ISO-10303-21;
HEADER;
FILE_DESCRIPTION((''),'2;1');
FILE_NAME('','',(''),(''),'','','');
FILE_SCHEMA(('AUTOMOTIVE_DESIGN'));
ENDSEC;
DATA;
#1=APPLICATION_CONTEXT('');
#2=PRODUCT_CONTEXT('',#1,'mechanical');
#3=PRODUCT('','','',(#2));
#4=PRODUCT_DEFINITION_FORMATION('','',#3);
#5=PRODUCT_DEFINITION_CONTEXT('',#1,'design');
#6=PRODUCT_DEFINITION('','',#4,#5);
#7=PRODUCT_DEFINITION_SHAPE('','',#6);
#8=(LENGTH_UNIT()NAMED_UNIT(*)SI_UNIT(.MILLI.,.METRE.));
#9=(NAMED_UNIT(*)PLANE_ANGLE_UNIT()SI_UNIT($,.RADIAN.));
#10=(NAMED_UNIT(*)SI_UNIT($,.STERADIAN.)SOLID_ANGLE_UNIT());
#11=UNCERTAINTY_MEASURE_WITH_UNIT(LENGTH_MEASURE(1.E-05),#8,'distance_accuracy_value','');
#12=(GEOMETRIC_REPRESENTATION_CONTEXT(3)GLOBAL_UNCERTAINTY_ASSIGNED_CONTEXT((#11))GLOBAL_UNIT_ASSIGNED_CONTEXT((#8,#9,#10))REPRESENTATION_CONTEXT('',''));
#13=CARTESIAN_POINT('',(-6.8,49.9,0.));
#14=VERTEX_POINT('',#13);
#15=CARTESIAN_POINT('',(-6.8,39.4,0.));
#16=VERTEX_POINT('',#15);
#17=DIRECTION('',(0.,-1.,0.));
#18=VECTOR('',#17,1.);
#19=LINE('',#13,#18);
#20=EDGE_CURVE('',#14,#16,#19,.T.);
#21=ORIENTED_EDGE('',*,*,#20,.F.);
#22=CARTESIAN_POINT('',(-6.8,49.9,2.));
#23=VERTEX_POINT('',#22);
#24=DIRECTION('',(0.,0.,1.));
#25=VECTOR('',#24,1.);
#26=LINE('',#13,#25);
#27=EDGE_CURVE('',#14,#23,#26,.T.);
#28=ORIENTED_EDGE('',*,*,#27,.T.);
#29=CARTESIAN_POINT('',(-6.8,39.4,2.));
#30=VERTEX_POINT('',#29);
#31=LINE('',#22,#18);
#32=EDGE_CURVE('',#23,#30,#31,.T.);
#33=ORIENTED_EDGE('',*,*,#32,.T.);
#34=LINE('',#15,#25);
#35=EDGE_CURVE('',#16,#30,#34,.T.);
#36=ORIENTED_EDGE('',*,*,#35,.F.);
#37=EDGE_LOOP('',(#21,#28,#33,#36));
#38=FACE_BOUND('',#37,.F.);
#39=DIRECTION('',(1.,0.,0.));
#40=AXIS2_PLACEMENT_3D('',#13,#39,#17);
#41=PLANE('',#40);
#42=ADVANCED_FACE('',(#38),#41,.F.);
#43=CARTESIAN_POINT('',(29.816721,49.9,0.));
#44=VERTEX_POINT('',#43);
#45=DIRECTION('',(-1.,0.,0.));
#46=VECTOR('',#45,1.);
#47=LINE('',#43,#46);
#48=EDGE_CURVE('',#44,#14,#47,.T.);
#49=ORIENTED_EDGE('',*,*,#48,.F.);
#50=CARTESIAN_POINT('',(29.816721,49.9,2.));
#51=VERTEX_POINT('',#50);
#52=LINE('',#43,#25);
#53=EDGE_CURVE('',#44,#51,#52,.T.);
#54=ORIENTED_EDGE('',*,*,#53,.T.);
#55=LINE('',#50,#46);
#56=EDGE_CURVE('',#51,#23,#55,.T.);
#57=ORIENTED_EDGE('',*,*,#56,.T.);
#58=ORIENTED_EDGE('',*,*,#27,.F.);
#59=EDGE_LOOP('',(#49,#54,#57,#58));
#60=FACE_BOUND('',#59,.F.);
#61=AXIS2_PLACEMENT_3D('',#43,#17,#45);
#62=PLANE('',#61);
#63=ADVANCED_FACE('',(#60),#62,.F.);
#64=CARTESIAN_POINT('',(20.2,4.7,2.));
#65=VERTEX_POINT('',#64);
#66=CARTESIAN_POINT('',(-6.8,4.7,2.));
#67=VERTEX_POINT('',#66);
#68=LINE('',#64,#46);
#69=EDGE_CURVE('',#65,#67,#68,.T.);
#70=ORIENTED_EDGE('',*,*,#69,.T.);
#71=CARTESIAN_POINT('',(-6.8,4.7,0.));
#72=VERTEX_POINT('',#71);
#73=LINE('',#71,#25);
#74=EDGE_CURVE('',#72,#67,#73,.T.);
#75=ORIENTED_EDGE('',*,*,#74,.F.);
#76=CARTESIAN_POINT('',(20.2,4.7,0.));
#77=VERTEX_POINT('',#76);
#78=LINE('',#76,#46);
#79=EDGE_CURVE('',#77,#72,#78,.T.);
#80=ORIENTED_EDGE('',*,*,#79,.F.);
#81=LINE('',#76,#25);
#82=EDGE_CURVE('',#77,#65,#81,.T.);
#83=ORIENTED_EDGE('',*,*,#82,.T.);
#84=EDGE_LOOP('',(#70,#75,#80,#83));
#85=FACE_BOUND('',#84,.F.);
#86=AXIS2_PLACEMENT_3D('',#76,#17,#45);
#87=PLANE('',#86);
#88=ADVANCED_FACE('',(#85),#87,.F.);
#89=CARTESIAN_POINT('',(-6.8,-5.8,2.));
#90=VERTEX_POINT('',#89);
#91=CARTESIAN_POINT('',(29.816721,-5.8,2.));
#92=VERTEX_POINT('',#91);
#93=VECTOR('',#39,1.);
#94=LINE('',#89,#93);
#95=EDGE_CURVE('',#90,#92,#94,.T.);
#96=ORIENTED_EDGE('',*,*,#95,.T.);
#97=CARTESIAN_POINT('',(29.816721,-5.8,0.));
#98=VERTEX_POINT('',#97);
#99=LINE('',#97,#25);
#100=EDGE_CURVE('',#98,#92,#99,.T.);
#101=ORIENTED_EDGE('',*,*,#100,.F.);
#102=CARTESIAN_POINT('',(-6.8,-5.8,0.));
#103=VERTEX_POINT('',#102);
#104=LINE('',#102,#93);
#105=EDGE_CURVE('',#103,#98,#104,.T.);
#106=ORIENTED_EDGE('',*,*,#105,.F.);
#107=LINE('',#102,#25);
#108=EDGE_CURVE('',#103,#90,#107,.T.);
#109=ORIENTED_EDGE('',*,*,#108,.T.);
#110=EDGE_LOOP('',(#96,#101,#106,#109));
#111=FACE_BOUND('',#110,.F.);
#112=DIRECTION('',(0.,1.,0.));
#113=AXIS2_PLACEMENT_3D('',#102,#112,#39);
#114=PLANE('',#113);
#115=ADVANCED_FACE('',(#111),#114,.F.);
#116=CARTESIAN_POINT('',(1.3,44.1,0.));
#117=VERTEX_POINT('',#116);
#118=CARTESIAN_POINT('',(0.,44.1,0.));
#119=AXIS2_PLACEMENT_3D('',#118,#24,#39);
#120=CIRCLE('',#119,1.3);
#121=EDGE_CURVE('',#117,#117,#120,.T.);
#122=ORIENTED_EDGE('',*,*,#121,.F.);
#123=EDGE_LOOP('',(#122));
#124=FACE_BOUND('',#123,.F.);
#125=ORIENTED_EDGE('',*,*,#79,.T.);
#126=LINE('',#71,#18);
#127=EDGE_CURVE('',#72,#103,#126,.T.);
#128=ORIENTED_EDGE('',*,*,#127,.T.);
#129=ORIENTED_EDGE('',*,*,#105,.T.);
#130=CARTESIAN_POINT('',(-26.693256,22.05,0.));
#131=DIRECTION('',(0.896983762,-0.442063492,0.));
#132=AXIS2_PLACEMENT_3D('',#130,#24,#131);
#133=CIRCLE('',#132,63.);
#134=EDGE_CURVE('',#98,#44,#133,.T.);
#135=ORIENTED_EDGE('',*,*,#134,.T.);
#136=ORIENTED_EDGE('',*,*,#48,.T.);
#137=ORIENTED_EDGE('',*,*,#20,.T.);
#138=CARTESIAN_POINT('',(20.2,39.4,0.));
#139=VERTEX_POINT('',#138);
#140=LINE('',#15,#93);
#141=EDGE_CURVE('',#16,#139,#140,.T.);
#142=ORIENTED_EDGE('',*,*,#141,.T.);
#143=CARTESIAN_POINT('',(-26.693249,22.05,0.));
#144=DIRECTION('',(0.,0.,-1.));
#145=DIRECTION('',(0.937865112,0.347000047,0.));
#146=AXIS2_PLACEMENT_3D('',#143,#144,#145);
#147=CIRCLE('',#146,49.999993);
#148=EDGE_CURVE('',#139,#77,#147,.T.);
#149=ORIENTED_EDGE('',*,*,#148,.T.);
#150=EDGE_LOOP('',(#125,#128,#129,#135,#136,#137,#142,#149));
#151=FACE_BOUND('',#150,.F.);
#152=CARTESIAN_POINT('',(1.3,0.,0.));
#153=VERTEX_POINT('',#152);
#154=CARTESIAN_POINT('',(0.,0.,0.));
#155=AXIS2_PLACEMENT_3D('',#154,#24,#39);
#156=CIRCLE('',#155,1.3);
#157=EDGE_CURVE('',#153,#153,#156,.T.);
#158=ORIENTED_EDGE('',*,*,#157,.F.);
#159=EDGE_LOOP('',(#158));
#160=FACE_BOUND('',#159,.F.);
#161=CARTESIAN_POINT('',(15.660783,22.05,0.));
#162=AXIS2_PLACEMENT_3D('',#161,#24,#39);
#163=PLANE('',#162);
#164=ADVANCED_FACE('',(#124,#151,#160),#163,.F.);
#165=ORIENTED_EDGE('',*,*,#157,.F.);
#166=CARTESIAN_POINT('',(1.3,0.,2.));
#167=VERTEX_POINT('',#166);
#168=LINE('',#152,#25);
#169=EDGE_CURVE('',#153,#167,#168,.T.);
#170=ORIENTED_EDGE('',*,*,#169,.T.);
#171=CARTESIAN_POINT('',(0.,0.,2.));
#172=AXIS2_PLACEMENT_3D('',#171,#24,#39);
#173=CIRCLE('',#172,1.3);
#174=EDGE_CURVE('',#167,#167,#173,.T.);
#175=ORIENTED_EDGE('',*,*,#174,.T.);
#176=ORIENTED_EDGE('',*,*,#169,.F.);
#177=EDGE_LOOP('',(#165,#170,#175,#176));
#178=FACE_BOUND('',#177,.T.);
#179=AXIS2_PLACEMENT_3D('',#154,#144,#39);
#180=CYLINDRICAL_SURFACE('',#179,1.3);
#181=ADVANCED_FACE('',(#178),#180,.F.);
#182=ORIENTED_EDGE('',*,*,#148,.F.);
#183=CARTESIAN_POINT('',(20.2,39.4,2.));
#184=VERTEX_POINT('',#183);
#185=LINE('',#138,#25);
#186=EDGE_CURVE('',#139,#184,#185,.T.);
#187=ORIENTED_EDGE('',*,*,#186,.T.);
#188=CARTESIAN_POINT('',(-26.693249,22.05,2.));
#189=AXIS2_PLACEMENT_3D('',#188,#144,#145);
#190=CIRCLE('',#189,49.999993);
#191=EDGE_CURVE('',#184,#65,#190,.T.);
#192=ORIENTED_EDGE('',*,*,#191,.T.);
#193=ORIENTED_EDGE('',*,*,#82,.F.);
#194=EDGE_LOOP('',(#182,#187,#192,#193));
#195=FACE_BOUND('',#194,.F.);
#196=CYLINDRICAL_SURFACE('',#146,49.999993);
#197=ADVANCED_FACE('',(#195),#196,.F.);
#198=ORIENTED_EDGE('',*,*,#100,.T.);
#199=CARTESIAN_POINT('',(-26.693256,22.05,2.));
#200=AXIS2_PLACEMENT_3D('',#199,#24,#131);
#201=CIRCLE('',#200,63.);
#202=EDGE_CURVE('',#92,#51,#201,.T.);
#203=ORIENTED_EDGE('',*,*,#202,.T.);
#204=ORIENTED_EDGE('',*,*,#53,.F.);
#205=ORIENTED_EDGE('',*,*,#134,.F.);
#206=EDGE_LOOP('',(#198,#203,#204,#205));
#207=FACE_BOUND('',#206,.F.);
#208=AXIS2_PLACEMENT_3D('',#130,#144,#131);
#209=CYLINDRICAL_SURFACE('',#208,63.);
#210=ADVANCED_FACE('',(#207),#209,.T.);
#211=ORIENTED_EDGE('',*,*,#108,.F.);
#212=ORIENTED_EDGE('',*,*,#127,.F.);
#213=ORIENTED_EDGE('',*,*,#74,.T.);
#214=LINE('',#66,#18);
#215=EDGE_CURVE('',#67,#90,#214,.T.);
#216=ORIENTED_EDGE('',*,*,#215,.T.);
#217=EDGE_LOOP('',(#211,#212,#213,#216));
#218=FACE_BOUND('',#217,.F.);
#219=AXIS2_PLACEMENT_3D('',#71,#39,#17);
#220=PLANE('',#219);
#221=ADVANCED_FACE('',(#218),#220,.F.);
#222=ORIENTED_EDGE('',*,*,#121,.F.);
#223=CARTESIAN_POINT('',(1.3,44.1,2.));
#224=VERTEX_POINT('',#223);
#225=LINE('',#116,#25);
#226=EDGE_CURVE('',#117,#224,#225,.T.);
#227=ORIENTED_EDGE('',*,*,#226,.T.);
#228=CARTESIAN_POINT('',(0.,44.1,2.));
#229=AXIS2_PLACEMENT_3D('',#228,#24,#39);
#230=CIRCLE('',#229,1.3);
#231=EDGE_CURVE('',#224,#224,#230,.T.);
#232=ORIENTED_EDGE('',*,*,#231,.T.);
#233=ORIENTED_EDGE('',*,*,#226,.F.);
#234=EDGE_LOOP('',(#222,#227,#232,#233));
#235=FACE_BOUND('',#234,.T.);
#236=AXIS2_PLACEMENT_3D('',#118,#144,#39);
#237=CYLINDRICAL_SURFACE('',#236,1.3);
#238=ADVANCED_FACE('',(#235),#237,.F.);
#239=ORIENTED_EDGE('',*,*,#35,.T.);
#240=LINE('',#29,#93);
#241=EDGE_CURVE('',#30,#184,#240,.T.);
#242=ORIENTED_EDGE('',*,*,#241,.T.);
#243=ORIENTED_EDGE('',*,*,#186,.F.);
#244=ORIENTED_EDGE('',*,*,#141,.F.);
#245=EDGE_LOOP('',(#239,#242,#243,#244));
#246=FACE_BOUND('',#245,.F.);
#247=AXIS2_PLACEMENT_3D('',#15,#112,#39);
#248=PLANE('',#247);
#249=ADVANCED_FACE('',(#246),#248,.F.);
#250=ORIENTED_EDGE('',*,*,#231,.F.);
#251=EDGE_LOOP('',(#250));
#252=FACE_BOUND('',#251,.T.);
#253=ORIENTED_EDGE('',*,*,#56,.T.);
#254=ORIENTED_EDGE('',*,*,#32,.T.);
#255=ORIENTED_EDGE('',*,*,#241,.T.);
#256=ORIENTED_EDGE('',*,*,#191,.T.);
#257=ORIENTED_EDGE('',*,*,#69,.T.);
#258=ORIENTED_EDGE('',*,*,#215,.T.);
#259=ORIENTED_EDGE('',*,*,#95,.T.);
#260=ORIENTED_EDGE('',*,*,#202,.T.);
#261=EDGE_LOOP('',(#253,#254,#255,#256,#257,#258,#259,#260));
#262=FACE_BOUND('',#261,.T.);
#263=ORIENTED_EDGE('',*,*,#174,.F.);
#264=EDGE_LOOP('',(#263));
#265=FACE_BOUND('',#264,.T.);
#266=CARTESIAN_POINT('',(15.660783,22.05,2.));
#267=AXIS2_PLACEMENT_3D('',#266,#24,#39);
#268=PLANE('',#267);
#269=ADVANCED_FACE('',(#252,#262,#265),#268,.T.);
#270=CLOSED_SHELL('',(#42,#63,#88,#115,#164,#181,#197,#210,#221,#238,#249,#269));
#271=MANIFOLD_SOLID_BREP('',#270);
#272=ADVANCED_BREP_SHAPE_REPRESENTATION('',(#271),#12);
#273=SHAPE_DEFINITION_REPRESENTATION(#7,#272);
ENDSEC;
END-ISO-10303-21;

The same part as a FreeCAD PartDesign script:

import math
import FreeCAD as App
import Part
import Sketcher

doc = App.newDocument("Part")
body = doc.addObject("PartDesign::Body", "Body")

# Sketch on XY plane
sketch1 = doc.addObject("Sketcher::SketchObject", "Sketch")
body.addObject(sketch1)
sketch1.AttachmentSupport = (doc.XY_Plane, [""])
sketch1.MapMode = "FlatFace"
sketch1.addGeometry([
    Part.LineSegment(App.Vector(20.2, 4.7, 0), App.Vector(-6.8, 4.7, 0)),  # 0
    Part.LineSegment(App.Vector(-6.8, 4.7, 0), App.Vector(-6.8, -5.8, 0)),  # 1
    Part.LineSegment(App.Vector(-6.8, -5.8, 0), App.Vector(29.8, -5.8, 0)),  # 2
    Part.ArcOfCircle(Part.Circle(App.Vector(-26.7, 22.1, 0), App.Vector(0, 0, 1), 63), math.radians(-26), math.radians(26)),  # 3
    Part.LineSegment(App.Vector(29.8, 49.9, 0), App.Vector(-6.8, 49.9, 0)),  # 4
    Part.LineSegment(App.Vector(-6.8, 49.9, 0), App.Vector(-6.8, 39.4, 0)),  # 5
    Part.LineSegment(App.Vector(-6.8, 39.4, 0), App.Vector(20.2, 39.4, 0)),  # 6
    Part.ArcOfCircle(Part.Circle(App.Vector(-26.7, 22.1, 0), App.Vector(0, 0, 1), 50), math.radians(-20), math.radians(20)),  # 7
    Part.Circle(App.Vector(0, 0, 0), App.Vector(0, 0, 1), 1.3),  # 8
    Part.Circle(App.Vector(0, 44.1, 0), App.Vector(0, 0, 1), 1.3),  # 9
], False)
sketch1.addConstraint([
    Sketcher.Constraint("Coincident", 0, 2, 1, 1),
    Sketcher.Constraint("Coincident", 1, 2, 2, 1),
    Sketcher.Constraint("Coincident", 2, 2, 3, 1),
    Sketcher.Constraint("Coincident", 3, 2, 4, 1),
    Sketcher.Constraint("Coincident", 4, 2, 5, 1),
    Sketcher.Constraint("Coincident", 5, 2, 6, 1),
    Sketcher.Constraint("Coincident", 6, 2, 7, 2),
    Sketcher.Constraint("Coincident", 7, 1, 0, 1),
    Sketcher.Constraint("Horizontal", 0),
    Sketcher.Constraint("Vertical", 1),
    Sketcher.Constraint("Horizontal", 2),
    Sketcher.Constraint("Horizontal", 4),
    Sketcher.Constraint("Vertical", 5),
    Sketcher.Constraint("Horizontal", 6),
    Sketcher.Constraint("Coincident", 8, 3, -1, 1),
    Sketcher.Constraint("Coincident", 7, 3, 3, 3),
    Sketcher.Constraint("Equal", 8, 9),
    Sketcher.Constraint("PointOnObject", 9, 3, -2),
    Sketcher.Constraint("Vertical", 2, 2, 3, 2),
    Sketcher.Constraint("Vertical", 1, 2, 4, 2),
    Sketcher.Constraint("Vertical", 6, 2, 7, 1),
    Sketcher.Constraint("Radius", 3, 63.0),
    Sketcher.Constraint("Diameter", 8, 2.6),
    Sketcher.Constraint("DistanceX", 0, 2, 0, 1, 27.0),
    Sketcher.Constraint("DistanceY", 1, 2, 1, 1, 10.5),
    Sketcher.Constraint("DistanceY", -1, 1, 9, 3, 44.1),
    Sketcher.Constraint("DistanceX", 0, 2, -1, 1, 6.8),
    Sketcher.Constraint("DistanceY", -1, 1, 0, 2, 4.7),
    Sketcher.Constraint("DistanceY", -1, 1, 3, 2, 49.9),
    Sketcher.Constraint("Radius", 7, 49.999993),
])
pad1 = doc.addObject("PartDesign::Pad", "Pad")
body.addObject(pad1)
pad1.Profile = sketch1
pad1.Length = 2

doc.recompute()
